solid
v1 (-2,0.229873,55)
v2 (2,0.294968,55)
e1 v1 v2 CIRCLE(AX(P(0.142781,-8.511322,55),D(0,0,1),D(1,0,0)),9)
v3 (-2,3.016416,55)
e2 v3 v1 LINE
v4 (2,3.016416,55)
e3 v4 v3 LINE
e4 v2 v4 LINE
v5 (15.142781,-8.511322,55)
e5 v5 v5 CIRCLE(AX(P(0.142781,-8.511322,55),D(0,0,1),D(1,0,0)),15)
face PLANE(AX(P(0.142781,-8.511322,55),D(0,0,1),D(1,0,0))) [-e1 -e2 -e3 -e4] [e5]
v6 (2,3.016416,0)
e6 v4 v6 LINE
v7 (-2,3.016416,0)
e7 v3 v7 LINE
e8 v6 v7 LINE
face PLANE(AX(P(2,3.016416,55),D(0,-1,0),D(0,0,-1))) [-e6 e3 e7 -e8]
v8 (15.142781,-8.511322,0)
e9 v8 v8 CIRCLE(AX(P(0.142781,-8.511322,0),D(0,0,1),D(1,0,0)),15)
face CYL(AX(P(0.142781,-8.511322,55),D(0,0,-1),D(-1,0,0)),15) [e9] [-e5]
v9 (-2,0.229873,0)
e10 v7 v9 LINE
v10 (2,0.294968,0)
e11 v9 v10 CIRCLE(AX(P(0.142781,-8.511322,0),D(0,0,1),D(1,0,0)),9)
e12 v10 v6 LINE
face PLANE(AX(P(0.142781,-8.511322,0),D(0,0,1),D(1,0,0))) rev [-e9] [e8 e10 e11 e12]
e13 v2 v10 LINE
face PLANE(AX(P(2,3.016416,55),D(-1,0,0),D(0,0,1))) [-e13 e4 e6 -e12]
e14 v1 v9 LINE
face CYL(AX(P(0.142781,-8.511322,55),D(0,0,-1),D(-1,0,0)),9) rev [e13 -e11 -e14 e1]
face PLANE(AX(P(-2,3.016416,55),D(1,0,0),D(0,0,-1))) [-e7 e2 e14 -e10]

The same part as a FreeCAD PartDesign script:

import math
import FreeCAD as App
import Part
import Sketcher
Q = App.Units.Quantity

doc = App.newDocument("Part")
params = doc.addObject("Spreadsheet::Sheet", "Params")
for row, (alias, value) in enumerate([
    ("sketch1_diameter", "30 mm"),
    ("sketch1_radius", "9 mm"),
    ("sketch1_width", "4 mm"),
    ("pad1_length", "55 mm"),
], start=1):
    params.set(f"A{row}", alias)
    params.set(f"B{row}", "=" + value)
    params.setAlias(f"B{row}", alias)

body = doc.addObject("PartDesign::Body", "Body")

# Sketch on XY plane
sketch1 = doc.addObject("Sketcher::SketchObject", "Sketch")
body.addObject(sketch1)
sketch1.AttachmentSupport = (doc.XY_Plane, [""])
sketch1.MapMode = "FlatFace"
sketch1.addGeometry([
    Part.Circle(App.Vector(0.1, -8.5, 0), App.Vector(0, 0, 1), 15),  # 0
    Part.LineSegment(App.Vector(-2, 3, 0), App.Vector(2, 3, 0)),  # 1
    Part.LineSegment(App.Vector(2, 3, 0), App.Vector(2, 0.3, 0)),  # 2
    Part.ArcOfCircle(Part.Circle(App.Vector(0.1, -8.5, 0), App.Vector(0, 0, 1), 9), math.radians(104), math.radians(438)),  # 3
    Part.LineSegment(App.Vector(-2, 0.2, 0), App.Vector(-2, 3, 0)),  # 4
], False)
sketch1.addConstraint([
    Sketcher.Constraint("Coincident", 1, 2, 2, 1),
    Sketcher.Constraint("Coincident", 2, 2, 3, 2),
    Sketcher.Constraint("Coincident", 3, 1, 4, 1),
    Sketcher.Constraint("Coincident", 4, 2, 1, 1),
    Sketcher.Constraint("Horizontal", 1),
    Sketcher.Constraint("Vertical", 2),
    Sketcher.Constraint("Vertical", 4),
    Sketcher.Constraint("Coincident", 3, 3, 0, 3),
    Sketcher.Constraint("Diameter", 0, Q("30 mm")),
    Sketcher.Constraint("Radius", 3, Q("9 mm")),
    Sketcher.Constraint("DistanceX", 1, 1, 1, 2, Q("4 mm")),
    Sketcher.Constraint("DistanceX", -1, 1, 1, 2, Q("2 mm")),
    Sketcher.Constraint("DistanceY", 2, 2, 2, 1, Q("2.721448 mm")),
    Sketcher.Constraint("DistanceY", 4, 1, 4, 2, Q("2.786543 mm")),
    Sketcher.Constraint("DistanceY", 0, 3, -1, 1, Q("8.511322 mm")),
])
sketch1.setExpression("Constraints[8]", "Params.sketch1_diameter")
sketch1.setExpression("Constraints[9]", "Params.sketch1_radius")
sketch1.setExpression("Constraints[10]", "Params.sketch1_width")
pad1 = doc.addObject("PartDesign::Pad", "Pad")
body.addObject(pad1)
pad1.Profile = sketch1
pad1.setExpression("Length", "Params.pad1_length")

doc.recompute()
